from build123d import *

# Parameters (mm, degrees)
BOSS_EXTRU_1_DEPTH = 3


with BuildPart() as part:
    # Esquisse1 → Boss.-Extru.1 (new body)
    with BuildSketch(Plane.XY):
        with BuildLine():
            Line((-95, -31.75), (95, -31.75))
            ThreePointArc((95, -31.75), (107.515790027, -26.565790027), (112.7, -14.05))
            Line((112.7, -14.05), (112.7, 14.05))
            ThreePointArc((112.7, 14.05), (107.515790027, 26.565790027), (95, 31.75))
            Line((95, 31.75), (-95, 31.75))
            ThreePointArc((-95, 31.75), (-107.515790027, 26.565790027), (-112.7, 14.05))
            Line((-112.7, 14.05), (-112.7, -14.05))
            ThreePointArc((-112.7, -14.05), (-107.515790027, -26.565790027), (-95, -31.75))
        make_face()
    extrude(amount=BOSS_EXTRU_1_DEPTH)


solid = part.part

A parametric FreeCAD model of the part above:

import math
import FreeCAD as App
import Part
import Sketcher
from FreeCAD import Vector

doc = App.newDocument("Part")
body = doc.addObject("PartDesign::Body", "Body")

sketch1 = body.newObject("Sketcher::SketchObject", "Sketch")
sketch1.AttachmentSupport = (doc.getObject("XY_Plane"), [""])
sketch1.MapMode = "FlatFace"
sketch1.addGeometry(Part.LineSegment(Vector(-95, -32, 0), Vector(95, -32, 0)), False)
sketch1.addGeometry(Part.ArcOfCircle(Part.Circle(Vector(95, -14, 0), Vector(0, 0, 1), 18), math.radians(-90), math.radians(0)), False)
sketch1.addGeometry(Part.LineSegment(Vector(113, -14, 0), Vector(113, 14, 0)), False)
sketch1.addGeometry(Part.ArcOfCircle(Part.Circle(Vector(95, 14, 0), Vector(0, 0, 1), 18), math.radians(0), math.radians(90)), False)
sketch1.addGeometry(Part.LineSegment(Vector(95, 32, 0), Vector(-95, 32, 0)), False)
sketch1.addGeometry(Part.ArcOfCircle(Part.Circle(Vector(-95, 14, 0), Vector(0, 0, 1), 18), math.radians(90), math.radians(180)), False)
sketch1.addGeometry(Part.LineSegment(Vector(-113, 14, 0), Vector(-113, -14, 0)), False)
sketch1.addGeometry(Part.ArcOfCircle(Part.Circle(Vector(-95, -14, 0), Vector(0, 0, 1), 18), math.radians(180), math.radians(270)), False)
sketch1.addConstraint(Sketcher.Constraint("Tangent", 0, 2, 1, 1))
sketch1.addConstraint(Sketcher.Constraint("Tangent", 1, 2, 2, 1))
sketch1.addConstraint(Sketcher.Constraint("Tangent", 2, 2, 3, 1))
sketch1.addConstraint(Sketcher.Constraint("Tangent", 3, 2, 4, 1))
sketch1.addConstraint(Sketcher.Constraint("Tangent", 4, 2, 5, 1))
sketch1.addConstraint(Sketcher.Constraint("Tangent", 5, 2, 6, 1))
sketch1.addConstraint(Sketcher.Constraint("Tangent", 6, 2, 7, 1))
sketch1.addConstraint(Sketcher.Constraint("Tangent", 7, 2, 0, 1))
sketch1.addConstraint(Sketcher.Constraint("Horizontal", 0))
sketch1.addConstraint(Sketcher.Constraint("Vertical", 2))
sketch1.addConstraint(Sketcher.Constraint("Horizontal", 4))
sketch1.addConstraint(Sketcher.Constraint("Vertical", 6))
sketch1.addConstraint(Sketcher.Constraint("Equal", 1, 3))
sketch1.addConstraint(Sketcher.Constraint("Equal", 3, 5))
sketch1.addConstraint(Sketcher.Constraint("Equal", 5, 7))
sketch1.addConstraint(Sketcher.Constraint("Symmetric", 1, 3, 5, 3, -1, 1))
sketch1.addConstraint(Sketcher.Constraint("Radius", 1, 17.7))
sketch1.addConstraint(Sketcher.Constraint("DistanceX", 0, 1, 0, 2, 190.0))
sketch1.addConstraint(Sketcher.Constraint("DistanceY", 2, 1, 2, 2, 28.1))
pad1 = body.newObject("PartDesign::Pad", "Pad")
pad1.Profile = sketch1
pad1.Length = 3

doc.recompute()
